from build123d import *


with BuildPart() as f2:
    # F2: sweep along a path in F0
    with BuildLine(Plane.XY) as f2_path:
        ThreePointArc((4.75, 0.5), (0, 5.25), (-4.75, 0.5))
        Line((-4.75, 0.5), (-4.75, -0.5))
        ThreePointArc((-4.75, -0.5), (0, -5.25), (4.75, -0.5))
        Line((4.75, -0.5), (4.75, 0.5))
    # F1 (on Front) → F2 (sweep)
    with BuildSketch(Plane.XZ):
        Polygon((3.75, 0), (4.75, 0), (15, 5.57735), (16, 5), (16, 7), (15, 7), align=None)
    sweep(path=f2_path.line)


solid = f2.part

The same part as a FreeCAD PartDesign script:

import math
import FreeCAD as App
import Part
import Sketcher
Q = App.Units.Quantity


def add_polygon(sketch, points):
    """Adds a closed chain of lines whose ends are joined by coincident constraints."""
    first, n = sketch.GeometryCount, len(points)
    for a, b in zip(points, points[1:] + points[:1]):
        sketch.addGeometry(Part.LineSegment(App.Vector(*a, 0), App.Vector(*b, 0)), False)
    for i in range(n):
        sketch.addConstraint(Sketcher.Constraint("Coincident", first + i, 2, first + (i + 1) % n, 1))

doc = App.newDocument("Part")
body = doc.addObject("PartDesign::Body", "Body")

# Sketch on XZ plane
sketch1 = body.newObject("Sketcher::SketchObject", "Sketch")
sketch1.AttachmentSupport = (doc.getObject("XZ_Plane"), [""])
sketch1.MapMode = "FlatFace"
add_polygon(sketch1, [(3.8, 0), (4.8, 0), (15, 5.6), (16, 5), (16, 7), (15, 7)])  # lines 0-5
sketch1.addConstraint(Sketcher.Constraint("Horizontal", 0))
sketch1.addConstraint(Sketcher.Constraint("Vertical", 3))
sketch1.addConstraint(Sketcher.Constraint("Horizontal", 4))
sketch1.addConstraint(Sketcher.Constraint("PointOnObject", 0, 2, -1))
sketch1.addConstraint(Sketcher.Constraint("Vertical", 1, 2, 4, 2))
sketch1.addConstraint(Sketcher.Constraint("Equal", 0, 4))
sketch1.addConstraint(Sketcher.Constraint("DistanceX", 0, 1, 0, 2, 1.0))
sketch1.addConstraint(Sketcher.Constraint("DistanceY", 3, 1, 3, 2, 2.0))
sketch1.addConstraint(Sketcher.Constraint("Angle", 2, Q("-29.999988 deg")))
sketch1.addConstraint(Sketcher.Constraint("DistanceX", -1, 1, 1, 2, 15.0))
sketch1.addConstraint(Sketcher.Constraint("DistanceY", -1, 1, 2, 2, 5.0))
sketch1.addConstraint(Sketcher.Constraint("Distance", 5, 13.25))

# Sketch on XY plane
sketch2 = body.newObject("Sketcher::SketchObject", "Sketch001")
sketch2.AttachmentSupport = (doc.getObject("XY_Plane"), [""])
sketch2.MapMode = "FlatFace"
sketch2.addGeometry(Part.ArcOfCircle(Part.Circle(App.Vector(0, 0.5, 0), App.Vector(0, 0, 1), 4.8), math.radians(0), math.radians(180)), False)
sketch2.addGeometry(Part.LineSegment(App.Vector(-4.8, 0.5, 0), App.Vector(-4.8, -0.5, 0)), False)
sketch2.addGeometry(Part.ArcOfCircle(Part.Circle(App.Vector(0, -0.5, 0), App.Vector(0, 0, 1), 4.8), math.radians(180), math.radians(360)), False)
sketch2.addGeometry(Part.LineSegment(App.Vector(4.8, -0.5, 0), App.Vector(4.8, 0.5, 0)), False)
sketch2.addConstraint(Sketcher.Constraint("Tangent", 0, 2, 1, 1))
sketch2.addConstraint(Sketcher.Constraint("Tangent", 1, 2, 2, 1))
sketch2.addConstraint(Sketcher.Constraint("Tangent", 2, 2, 3, 1))
sketch2.addConstraint(Sketcher.Constraint("Tangent", 3, 2, 0, 1))
sketch2.addConstraint(Sketcher.Constraint("Vertical", 1))
sketch2.addConstraint(Sketcher.Constraint("Vertical", 3))
sketch2.addConstraint(Sketcher.Constraint("Symmetric", 0, 3, 2, 3, -1, 1))
sketch2.addConstraint(Sketcher.Constraint("DistanceY", 1, 2, 1, 1, 1.0))
sketch2.addConstraint(Sketcher.Constraint("Radius", 0, 4.75))
doc.recompute()

additivepipe = body.newObject("PartDesign::AdditivePipe", "AdditivePipe")
additivepipe.Profile = sketch1
additivepipe.Spine = (sketch2, ["Edge1", "Edge2", "Edge3", "Edge4"])

doc.recompute()
